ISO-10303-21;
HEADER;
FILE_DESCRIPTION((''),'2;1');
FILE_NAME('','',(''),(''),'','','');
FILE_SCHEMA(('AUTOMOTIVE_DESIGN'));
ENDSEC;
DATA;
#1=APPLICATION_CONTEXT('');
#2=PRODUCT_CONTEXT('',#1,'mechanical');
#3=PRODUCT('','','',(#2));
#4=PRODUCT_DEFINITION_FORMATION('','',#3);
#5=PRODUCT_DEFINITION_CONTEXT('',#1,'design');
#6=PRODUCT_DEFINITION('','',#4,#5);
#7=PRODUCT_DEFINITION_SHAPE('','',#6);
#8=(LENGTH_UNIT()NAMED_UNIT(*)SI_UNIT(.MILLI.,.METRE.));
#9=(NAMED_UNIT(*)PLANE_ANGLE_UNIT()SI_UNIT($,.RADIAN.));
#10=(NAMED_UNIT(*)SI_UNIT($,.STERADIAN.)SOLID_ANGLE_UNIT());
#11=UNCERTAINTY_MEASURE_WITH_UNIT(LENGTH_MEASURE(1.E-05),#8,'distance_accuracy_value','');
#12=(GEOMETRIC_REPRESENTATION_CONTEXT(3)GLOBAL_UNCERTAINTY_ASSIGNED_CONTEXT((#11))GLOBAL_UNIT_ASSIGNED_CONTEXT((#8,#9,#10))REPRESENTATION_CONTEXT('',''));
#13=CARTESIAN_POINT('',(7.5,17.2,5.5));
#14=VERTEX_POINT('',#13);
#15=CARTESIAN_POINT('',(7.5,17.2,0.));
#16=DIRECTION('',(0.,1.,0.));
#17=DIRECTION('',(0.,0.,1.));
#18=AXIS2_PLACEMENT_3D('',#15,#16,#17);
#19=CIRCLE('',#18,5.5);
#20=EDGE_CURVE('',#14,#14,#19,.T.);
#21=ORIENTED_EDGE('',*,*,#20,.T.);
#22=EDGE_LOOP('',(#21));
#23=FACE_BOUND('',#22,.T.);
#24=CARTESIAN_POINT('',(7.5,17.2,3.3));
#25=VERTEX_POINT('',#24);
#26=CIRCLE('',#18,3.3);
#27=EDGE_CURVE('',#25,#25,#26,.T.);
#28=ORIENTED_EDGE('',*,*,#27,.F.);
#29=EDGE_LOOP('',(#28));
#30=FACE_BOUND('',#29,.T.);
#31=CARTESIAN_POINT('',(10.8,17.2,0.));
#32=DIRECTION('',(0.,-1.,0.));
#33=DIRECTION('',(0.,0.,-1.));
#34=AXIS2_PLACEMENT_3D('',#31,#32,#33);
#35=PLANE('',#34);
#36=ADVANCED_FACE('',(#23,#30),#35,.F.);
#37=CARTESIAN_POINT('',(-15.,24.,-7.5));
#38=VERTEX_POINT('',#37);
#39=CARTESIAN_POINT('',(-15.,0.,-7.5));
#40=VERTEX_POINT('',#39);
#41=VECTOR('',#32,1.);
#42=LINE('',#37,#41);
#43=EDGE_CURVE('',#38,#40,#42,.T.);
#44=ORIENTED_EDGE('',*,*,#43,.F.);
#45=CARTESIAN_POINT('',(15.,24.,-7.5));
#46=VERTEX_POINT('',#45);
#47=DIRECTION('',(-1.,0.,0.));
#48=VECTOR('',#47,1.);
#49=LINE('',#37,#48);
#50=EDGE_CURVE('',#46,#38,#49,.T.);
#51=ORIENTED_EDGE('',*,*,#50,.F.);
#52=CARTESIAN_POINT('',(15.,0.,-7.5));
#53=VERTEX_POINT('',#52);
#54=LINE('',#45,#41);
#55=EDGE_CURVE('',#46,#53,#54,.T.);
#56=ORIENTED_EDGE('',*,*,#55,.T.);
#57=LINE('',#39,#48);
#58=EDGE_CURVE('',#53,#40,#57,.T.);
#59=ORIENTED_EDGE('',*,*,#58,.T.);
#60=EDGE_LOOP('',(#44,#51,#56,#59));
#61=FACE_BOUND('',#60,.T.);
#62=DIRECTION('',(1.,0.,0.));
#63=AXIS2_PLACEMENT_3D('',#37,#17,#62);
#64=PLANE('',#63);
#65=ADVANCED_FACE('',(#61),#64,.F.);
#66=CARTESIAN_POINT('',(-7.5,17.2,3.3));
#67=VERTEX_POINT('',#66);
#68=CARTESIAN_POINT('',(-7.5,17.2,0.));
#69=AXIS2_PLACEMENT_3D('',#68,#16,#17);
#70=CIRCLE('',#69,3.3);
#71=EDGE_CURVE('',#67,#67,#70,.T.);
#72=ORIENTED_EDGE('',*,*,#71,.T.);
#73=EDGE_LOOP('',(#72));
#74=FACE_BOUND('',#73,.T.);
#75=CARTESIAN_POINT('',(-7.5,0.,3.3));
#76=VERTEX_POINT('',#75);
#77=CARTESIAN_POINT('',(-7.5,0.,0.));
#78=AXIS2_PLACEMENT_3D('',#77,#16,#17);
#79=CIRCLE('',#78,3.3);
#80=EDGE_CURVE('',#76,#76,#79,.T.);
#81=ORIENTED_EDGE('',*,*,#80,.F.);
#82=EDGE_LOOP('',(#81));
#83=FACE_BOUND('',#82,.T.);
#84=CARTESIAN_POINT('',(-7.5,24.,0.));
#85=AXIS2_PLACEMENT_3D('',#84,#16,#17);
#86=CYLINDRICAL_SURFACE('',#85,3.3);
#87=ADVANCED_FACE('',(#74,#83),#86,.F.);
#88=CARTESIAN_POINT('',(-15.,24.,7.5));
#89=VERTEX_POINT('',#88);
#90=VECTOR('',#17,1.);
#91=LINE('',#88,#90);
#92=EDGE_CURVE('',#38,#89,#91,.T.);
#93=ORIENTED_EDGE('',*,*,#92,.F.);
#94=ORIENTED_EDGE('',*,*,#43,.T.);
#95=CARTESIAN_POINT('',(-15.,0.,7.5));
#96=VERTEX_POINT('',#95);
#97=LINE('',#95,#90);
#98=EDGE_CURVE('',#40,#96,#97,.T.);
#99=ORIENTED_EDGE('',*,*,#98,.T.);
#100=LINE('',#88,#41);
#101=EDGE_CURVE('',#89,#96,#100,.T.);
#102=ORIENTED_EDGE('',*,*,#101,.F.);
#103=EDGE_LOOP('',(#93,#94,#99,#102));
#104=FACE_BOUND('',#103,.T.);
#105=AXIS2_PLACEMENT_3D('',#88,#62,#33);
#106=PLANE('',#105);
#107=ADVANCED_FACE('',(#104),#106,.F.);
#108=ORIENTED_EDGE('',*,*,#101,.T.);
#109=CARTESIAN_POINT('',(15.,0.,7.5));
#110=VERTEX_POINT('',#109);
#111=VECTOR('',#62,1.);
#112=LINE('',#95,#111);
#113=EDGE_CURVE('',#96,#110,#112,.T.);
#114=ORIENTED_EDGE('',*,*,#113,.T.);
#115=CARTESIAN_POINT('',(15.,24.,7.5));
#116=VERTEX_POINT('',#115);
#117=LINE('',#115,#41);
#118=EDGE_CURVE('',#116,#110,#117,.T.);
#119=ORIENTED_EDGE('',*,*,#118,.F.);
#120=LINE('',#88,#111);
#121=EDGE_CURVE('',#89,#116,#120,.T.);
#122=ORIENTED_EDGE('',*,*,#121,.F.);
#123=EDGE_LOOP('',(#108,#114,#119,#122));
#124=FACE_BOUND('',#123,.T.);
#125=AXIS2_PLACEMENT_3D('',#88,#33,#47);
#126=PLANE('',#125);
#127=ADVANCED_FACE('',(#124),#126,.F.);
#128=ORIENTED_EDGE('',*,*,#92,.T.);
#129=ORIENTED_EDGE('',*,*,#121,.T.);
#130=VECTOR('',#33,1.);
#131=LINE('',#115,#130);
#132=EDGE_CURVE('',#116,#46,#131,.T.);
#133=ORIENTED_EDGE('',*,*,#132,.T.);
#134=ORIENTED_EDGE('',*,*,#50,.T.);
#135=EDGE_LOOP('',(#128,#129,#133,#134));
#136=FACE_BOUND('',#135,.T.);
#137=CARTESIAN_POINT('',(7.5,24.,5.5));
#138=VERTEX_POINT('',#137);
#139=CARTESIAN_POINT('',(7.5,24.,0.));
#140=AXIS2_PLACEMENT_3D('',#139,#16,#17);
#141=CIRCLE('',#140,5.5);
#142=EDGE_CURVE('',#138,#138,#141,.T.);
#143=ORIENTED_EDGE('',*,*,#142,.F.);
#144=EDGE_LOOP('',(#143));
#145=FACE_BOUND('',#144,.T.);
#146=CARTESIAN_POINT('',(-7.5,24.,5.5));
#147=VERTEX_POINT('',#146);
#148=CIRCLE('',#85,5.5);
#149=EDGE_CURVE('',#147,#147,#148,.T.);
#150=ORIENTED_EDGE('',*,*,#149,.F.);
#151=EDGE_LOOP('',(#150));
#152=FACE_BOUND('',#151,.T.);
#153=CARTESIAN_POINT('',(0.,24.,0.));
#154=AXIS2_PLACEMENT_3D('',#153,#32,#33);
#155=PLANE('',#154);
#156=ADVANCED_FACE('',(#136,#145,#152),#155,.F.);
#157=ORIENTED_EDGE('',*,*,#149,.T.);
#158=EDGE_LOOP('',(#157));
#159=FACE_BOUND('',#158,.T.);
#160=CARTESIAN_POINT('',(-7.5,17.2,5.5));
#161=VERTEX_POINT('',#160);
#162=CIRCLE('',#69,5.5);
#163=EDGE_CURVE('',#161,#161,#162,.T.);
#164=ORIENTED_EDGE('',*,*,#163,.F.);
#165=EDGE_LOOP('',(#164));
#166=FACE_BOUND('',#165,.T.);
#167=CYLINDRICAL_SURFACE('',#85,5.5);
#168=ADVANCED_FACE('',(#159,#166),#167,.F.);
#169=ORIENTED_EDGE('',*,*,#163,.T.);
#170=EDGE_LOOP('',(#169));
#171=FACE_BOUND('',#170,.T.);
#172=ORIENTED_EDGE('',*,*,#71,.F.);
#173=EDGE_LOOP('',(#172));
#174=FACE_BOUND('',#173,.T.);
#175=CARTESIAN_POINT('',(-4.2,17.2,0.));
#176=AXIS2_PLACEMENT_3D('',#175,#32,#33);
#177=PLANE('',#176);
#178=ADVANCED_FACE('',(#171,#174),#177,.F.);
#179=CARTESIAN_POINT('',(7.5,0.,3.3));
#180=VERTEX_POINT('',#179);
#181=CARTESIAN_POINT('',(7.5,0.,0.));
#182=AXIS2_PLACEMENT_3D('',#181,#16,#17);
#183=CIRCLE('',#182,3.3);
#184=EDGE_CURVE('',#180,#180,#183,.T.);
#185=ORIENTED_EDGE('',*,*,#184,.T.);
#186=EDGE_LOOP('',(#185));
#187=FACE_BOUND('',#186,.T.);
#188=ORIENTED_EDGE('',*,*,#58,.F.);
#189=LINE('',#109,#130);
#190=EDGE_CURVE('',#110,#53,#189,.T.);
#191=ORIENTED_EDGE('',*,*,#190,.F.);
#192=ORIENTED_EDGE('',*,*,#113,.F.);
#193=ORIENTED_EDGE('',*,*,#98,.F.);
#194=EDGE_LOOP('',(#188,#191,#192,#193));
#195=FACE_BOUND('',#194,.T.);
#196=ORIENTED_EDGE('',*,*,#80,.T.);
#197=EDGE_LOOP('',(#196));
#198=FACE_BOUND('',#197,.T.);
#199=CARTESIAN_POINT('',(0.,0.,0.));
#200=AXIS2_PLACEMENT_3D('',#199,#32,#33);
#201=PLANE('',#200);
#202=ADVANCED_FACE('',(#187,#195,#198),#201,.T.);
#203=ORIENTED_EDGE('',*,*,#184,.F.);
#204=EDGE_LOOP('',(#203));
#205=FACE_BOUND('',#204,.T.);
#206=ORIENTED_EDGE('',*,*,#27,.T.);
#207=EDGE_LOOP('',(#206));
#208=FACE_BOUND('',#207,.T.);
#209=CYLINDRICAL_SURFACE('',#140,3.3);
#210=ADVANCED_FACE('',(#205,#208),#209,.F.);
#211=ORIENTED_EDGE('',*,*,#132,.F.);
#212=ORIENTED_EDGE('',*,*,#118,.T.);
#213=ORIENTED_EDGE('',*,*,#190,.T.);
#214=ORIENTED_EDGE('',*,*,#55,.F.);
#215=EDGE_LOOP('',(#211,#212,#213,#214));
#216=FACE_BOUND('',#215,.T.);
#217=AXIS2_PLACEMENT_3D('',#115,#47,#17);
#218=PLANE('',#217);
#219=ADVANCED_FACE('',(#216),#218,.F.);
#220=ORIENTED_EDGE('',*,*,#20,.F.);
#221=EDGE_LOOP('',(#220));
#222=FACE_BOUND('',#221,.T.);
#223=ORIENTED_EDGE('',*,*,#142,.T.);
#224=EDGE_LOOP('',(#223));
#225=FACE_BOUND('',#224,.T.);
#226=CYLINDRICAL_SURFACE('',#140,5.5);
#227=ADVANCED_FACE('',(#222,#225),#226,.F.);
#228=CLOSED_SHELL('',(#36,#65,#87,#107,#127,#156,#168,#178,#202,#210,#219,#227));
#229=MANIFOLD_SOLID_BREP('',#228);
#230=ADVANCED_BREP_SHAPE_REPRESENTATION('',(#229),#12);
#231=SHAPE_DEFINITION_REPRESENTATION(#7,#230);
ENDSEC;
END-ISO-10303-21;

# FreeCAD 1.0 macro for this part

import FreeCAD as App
import Part
import Sketcher


def add_polygon(sketch, points):
    """Adds a closed chain of lines whose ends are joined by coincident constraints."""
    first, n = sketch.GeometryCount, len(points)
    for a, b in zip(points, points[1:] + points[:1]):
        sketch.addGeometry(Part.LineSegment(App.Vector(*a, 0), App.Vector(*b, 0)), False)
    for i in range(n):
        sketch.addConstraint(Sketcher.Constraint("Coincident", first + i, 2, first + (i + 1) % n, 1))

doc = App.newDocument("Part")
params = doc.addObject("Spreadsheet::Sheet", "Params")
for row, (alias, value) in enumerate([
    ("sketch1_width", "30 mm"),
    ("sketch1_height", "15 mm"),
    ("pad1_length", "24 mm"),
    ("sketch2_diameter", "6.6 mm"),
    ("hole_diameter", "6.6 mm"),
    ("hole_cbore_diameter", "11 mm"),
    ("hole_cbore_depth", "6.8 mm"),
], start=1):
    params.set(f"A{row}", alias)
    params.set(f"B{row}", "=" + value)
    params.setAlias(f"B{row}", alias)

body = doc.addObject("PartDesign::Body", "Body")

# Sketch on XZ plane
sketch1 = body.newObject("Sketcher::SketchObject", "Sketch")
sketch1.AttachmentSupport = (doc.getObject("XZ_Plane"), [""])
sketch1.MapMode = "FlatFace"
add_polygon(sketch1, [(-15, -8), (-15, 8), (15, 8), (15, -8)])  # lines 0-3
sketch1.addConstraint(Sketcher.Constraint("Vertical", 0))
sketch1.addConstraint(Sketcher.Constraint("Horizontal", 1))
sketch1.addConstraint(Sketcher.Constraint("Vertical", 2))
sketch1.addConstraint(Sketcher.Constraint("Horizontal", 3))
sketch1.addConstraint(Sketcher.Constraint("Symmetric", 0, 2, 2, 2, -1, 1))
sketch1.addConstraint(Sketcher.Constraint("DistanceX", 1, 1, 1, 2, 30.0))
sketch1.addConstraint(Sketcher.Constraint("DistanceY", 0, 1, 0, 2, 15.0))
sketch1.setExpression("Constraints[9]", "Params.sketch1_width")
sketch1.setExpression("Constraints[10]", "Params.sketch1_height")
pad1 = body.newObject("PartDesign::Pad", "Pad")
pad1.Profile = sketch1
pad1.setExpression("Length", "Params.pad1_length")
pad1.Reversed = True

# Sketch on XZ plane
sketch2 = body.newObject("Sketcher::SketchObject", "Sketch001")
sketch2.AttachmentSupport = (doc.getObject("XZ_Plane"), [""])
sketch2.MapMode = "FlatFace"
sketch2.AttachmentOffset = App.Placement(App.Vector(0, 0, -24), App.Rotation())
sketch2.addGeometry(Part.Circle(App.Vector(-7.5, 0, 0), App.Vector(0, 0, 1), 3.3), False)
sketch2.addGeometry(Part.Circle(App.Vector(7.5, 0, 0), App.Vector(0, 0, 1), 3.3), False)
sketch2.addConstraint(Sketcher.Constraint("Equal", 0, 1))
sketch2.addConstraint(Sketcher.Constraint("Symmetric", 0, 3, 1, 3, -1, 1))
sketch2.addConstraint(Sketcher.Constraint("PointOnObject", 0, 3, -1))
sketch2.addConstraint(Sketcher.Constraint("Diameter", 0, 6.6))
sketch2.addConstraint(Sketcher.Constraint("DistanceX", 0, 3, 1, 3, 15.0))
sketch2.setExpression("Constraints[3]", "Params.sketch2_diameter")
doc.recompute()
hole = body.newObject("PartDesign::Hole", "Hole")
hole.Profile = sketch2
hole.ThreadType = "None"
hole.setExpression("Diameter", "Params.hole_diameter")
hole.DepthType = "ThroughAll"
hole.HoleCutType = "Counterbore"
hole.setExpression("HoleCutDiameter", "Params.hole_cbore_diameter")
hole.setExpression("HoleCutDepth", "Params.hole_cbore_depth")
hole.Reversed = True

doc.recompute()
